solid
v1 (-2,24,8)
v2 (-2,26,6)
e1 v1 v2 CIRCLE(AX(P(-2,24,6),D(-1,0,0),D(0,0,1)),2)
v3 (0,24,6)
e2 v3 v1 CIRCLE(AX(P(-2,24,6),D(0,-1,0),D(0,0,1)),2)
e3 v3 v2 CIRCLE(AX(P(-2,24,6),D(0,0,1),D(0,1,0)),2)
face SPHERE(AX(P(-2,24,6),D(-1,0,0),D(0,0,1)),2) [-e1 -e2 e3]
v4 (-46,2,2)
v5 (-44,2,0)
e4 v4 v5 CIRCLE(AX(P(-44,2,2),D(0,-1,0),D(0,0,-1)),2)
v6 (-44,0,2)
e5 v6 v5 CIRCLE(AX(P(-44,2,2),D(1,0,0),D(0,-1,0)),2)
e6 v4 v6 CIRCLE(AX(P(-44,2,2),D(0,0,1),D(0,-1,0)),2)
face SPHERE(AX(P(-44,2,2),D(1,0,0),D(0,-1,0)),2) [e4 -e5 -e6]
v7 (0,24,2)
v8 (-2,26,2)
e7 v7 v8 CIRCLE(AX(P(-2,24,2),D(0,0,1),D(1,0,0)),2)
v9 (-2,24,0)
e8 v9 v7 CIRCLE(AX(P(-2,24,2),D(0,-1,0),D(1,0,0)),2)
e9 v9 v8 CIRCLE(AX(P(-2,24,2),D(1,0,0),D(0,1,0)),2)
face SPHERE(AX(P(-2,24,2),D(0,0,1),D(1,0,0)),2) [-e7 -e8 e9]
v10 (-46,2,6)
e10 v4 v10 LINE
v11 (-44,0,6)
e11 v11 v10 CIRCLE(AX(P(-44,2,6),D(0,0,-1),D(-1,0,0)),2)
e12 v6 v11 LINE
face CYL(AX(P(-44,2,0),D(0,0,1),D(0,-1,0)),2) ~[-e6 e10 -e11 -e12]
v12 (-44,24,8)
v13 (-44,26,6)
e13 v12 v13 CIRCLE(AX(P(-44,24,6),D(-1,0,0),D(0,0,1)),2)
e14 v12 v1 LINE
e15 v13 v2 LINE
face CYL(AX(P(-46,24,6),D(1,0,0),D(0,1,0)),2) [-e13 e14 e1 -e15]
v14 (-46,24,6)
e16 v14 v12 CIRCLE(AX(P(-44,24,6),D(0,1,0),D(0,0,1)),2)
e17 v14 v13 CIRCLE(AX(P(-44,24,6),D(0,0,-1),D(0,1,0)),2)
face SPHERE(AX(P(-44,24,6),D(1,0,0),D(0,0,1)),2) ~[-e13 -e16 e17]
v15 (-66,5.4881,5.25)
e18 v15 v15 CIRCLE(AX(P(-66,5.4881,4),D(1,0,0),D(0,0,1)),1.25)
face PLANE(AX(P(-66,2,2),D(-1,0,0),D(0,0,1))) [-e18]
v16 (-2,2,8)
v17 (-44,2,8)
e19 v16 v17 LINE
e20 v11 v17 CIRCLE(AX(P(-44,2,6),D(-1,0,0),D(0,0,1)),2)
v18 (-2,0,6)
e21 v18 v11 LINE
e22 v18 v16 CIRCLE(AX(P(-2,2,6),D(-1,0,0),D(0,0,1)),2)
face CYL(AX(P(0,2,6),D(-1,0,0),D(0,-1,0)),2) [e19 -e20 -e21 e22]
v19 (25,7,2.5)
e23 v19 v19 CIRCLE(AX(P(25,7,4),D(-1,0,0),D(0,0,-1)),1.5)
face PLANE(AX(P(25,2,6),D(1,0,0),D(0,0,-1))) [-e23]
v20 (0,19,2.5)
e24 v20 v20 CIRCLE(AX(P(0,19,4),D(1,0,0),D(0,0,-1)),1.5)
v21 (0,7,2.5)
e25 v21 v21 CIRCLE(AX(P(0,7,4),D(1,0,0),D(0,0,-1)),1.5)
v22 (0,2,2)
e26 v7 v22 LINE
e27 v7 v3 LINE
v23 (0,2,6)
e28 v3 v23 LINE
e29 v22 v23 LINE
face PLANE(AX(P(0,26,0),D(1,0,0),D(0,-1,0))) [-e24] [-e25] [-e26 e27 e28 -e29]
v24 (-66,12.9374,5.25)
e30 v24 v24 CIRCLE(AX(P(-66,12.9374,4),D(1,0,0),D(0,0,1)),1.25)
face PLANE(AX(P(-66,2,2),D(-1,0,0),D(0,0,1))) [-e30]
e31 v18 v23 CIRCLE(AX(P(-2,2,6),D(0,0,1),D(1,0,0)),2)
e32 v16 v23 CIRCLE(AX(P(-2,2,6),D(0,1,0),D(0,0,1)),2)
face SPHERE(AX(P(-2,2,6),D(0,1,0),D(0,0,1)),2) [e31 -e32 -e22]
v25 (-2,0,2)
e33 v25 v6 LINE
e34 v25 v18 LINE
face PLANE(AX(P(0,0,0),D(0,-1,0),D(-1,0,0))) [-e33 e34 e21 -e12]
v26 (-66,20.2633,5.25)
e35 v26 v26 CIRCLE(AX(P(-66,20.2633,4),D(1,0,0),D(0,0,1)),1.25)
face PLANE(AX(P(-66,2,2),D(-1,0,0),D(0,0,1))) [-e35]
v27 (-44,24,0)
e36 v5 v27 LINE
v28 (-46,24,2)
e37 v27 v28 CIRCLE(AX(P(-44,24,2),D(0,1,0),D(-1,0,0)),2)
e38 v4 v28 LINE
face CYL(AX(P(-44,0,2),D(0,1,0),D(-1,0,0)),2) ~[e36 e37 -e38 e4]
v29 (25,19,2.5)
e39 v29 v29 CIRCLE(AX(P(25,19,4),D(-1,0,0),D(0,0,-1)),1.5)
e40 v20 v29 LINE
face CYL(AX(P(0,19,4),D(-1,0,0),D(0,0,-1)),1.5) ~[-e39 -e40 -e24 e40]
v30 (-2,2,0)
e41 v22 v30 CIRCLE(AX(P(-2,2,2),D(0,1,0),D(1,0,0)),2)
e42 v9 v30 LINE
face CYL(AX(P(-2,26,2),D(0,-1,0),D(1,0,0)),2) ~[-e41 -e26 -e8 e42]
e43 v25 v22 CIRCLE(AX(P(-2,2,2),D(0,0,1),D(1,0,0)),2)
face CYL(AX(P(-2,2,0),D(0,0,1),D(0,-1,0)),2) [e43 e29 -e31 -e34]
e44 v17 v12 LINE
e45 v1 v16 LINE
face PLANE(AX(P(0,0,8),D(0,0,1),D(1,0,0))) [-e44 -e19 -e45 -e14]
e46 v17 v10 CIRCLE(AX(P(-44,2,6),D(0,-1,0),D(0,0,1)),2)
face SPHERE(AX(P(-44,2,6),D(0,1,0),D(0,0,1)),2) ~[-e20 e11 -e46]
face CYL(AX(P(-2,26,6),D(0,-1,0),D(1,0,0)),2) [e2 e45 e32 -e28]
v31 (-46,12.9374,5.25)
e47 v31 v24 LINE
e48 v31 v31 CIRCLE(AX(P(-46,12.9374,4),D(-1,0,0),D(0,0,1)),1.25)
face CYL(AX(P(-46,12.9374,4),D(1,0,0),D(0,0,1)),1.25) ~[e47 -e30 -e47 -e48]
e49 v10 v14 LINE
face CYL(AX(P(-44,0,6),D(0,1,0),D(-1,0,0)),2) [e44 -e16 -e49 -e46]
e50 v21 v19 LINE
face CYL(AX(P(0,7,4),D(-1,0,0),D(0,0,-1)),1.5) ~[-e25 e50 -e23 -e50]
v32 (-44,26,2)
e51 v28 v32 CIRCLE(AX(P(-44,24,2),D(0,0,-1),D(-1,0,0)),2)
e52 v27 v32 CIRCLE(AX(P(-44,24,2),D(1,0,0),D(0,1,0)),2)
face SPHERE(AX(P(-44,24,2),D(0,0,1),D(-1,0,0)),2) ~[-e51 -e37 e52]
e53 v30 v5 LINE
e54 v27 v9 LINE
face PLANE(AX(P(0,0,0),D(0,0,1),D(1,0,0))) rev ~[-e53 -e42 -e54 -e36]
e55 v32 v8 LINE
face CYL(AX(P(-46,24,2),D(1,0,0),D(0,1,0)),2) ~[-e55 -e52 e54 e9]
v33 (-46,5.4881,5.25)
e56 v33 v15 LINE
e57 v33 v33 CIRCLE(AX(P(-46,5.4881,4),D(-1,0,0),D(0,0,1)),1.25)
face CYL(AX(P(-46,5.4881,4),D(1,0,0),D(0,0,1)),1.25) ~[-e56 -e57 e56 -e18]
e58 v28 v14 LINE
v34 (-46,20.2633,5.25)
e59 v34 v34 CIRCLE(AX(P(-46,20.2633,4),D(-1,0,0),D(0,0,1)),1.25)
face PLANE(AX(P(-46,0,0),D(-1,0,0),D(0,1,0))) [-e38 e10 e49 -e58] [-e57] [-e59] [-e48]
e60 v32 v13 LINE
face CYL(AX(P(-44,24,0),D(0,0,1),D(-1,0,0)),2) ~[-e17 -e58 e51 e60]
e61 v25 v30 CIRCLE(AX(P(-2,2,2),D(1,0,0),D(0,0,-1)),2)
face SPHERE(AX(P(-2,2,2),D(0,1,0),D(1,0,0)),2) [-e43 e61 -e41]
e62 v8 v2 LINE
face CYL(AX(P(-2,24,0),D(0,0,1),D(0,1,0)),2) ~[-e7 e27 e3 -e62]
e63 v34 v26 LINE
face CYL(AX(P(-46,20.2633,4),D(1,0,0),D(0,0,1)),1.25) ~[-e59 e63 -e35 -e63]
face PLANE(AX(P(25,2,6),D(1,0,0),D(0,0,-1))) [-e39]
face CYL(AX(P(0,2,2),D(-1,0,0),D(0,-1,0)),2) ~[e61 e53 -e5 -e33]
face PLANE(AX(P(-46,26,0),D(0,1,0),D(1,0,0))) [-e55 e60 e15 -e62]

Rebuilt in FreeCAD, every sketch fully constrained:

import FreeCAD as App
import Part
import Sketcher

V = App.Vector


def add_polygon(sketch, points):
    """Adds a closed chain of lines whose ends are joined by coincident constraints."""
    first, n = sketch.GeometryCount, len(points)
    for a, b in zip(points, points[1:] + points[:1]):
        sketch.addGeometry(Part.LineSegment(App.Vector(*a, 0), App.Vector(*b, 0)), False)
    for i in range(n):
        sketch.addConstraint(Sketcher.Constraint("Coincident", first + i, 2, first + (i + 1) % n, 1))

doc = App.newDocument("Part")
body = doc.addObject("PartDesign::Body", "Body")

sketch1 = body.newObject("Sketcher::SketchObject", "Sketch")
sketch1.AttachmentSupport = (doc.getObject("XY_Plane"), [""])
sketch1.MapMode = "FlatFace"
add_polygon(sketch1, [(-46, 0), (0, 0), (0, 26), (-46, 26)])
sketch1.addConstraint(Sketcher.Constraint("Horizontal", 0))
sketch1.addConstraint(Sketcher.Constraint("Vertical", 1))
sketch1.addConstraint(Sketcher.Constraint("Horizontal", 2))
sketch1.addConstraint(Sketcher.Constraint("Vertical", 3))
sketch1.addConstraint(Sketcher.Constraint("Coincident", 0, 2, -1, 1))
sketch1.addConstraint(Sketcher.Constraint("DistanceX", 0, 1, 0, 2, 46.0))
sketch1.addConstraint(Sketcher.Constraint("DistanceY", 1, 1, 1, 2, 26.0))
pad1 = body.newObject("PartDesign::Pad", "Pad")
pad1.Profile = sketch1
pad1.Length = 8
doc.recompute()

fillet = body.newObject("PartDesign::Fillet", "Fillet")
fillet.Base = (pad1, ["Edge1"])
fillet.UseAllEdges = True
fillet.Radius = 2

sketch2 = body.newObject("Sketcher::SketchObject", "Sketch001")
sketch2.AttachmentSupport = (doc.getObject("YZ_Plane"), [""])
sketch2.MapMode = "FlatFace"
sketch2.addGeometry(Part.Circle(V(19, 4, 0), V(0, 0, 1), 1.5), False)
sketch2.addGeometry(Part.Circle(V(7, 4, 0), V(0, 0, 1), 1.5), False)
sketch2.addConstraint(Sketcher.Constraint("Equal", 0, 1))
sketch2.addConstraint(Sketcher.Constraint("Horizontal", 0, 3, 1, 3))
sketch2.addConstraint(Sketcher.Constraint("Diameter", 0, 3.0))
sketch2.addConstraint(Sketcher.Constraint("DistanceX", -1, 1, 0, 3, 19.0))
sketch2.addConstraint(Sketcher.Constraint("DistanceY", -1, 1, 0, 3, 4.0))
sketch2.addConstraint(Sketcher.Constraint("DistanceX", -1, 1, 1, 3, 7.0))
pad2 = body.newObject("PartDesign::Pad", "Pad001")
pad2.Profile = sketch2
pad2.Length = 25

sketch3 = body.newObject("Sketcher::SketchObject", "Sketch002")
sketch3.AttachmentSupport = (doc.getObject("YZ_Plane"), [""])
sketch3.MapMode = "FlatFace"
sketch3.AttachmentOffset = App.Placement(V(0, 0, -46), App.Rotation())
sketch3.addGeometry(Part.Circle(V(20.2633, 4, 0), V(0, 0, 1), 1.25), False)
sketch3.addGeometry(Part.Circle(V(5.4881, 4, 0), V(0, 0, 1), 1.25), False)
sketch3.addGeometry(Part.Circle(V(12.9374, 4, 0), V(0, 0, 1), 1.25), False)
sketch3.addConstraint(Sketcher.Constraint("Equal", 0, 1))
sketch3.addConstraint(Sketcher.Constraint("Equal", 1, 2))
sketch3.addConstraint(Sketcher.Constraint("Horizontal", 0, 3, 1, 3))
sketch3.addConstraint(Sketcher.Constraint("Horizontal", 1, 3, 2, 3))
sketch3.addConstraint(Sketcher.Constraint("Diameter", 0, 2.5))
sketch3.addConstraint(Sketcher.Constraint("DistanceY", -1, 1, 0, 3, 4.0))
sketch3.addConstraint(Sketcher.Constraint("DistanceX", -1, 1, 1, 3, 5.488))
sketch3.addConstraint(Sketcher.Constraint("DistanceX", 2, 3, 0, 3, 7.326))
sketch3.addConstraint(Sketcher.Constraint("DistanceX", -1, 1, 0, 3, 20.2633))
pad3 = body.newObject("PartDesign::Pad", "Pad002")
pad3.Profile = sketch3
pad3.Length = 20
pad3.Reversed = True

doc.recompute()
